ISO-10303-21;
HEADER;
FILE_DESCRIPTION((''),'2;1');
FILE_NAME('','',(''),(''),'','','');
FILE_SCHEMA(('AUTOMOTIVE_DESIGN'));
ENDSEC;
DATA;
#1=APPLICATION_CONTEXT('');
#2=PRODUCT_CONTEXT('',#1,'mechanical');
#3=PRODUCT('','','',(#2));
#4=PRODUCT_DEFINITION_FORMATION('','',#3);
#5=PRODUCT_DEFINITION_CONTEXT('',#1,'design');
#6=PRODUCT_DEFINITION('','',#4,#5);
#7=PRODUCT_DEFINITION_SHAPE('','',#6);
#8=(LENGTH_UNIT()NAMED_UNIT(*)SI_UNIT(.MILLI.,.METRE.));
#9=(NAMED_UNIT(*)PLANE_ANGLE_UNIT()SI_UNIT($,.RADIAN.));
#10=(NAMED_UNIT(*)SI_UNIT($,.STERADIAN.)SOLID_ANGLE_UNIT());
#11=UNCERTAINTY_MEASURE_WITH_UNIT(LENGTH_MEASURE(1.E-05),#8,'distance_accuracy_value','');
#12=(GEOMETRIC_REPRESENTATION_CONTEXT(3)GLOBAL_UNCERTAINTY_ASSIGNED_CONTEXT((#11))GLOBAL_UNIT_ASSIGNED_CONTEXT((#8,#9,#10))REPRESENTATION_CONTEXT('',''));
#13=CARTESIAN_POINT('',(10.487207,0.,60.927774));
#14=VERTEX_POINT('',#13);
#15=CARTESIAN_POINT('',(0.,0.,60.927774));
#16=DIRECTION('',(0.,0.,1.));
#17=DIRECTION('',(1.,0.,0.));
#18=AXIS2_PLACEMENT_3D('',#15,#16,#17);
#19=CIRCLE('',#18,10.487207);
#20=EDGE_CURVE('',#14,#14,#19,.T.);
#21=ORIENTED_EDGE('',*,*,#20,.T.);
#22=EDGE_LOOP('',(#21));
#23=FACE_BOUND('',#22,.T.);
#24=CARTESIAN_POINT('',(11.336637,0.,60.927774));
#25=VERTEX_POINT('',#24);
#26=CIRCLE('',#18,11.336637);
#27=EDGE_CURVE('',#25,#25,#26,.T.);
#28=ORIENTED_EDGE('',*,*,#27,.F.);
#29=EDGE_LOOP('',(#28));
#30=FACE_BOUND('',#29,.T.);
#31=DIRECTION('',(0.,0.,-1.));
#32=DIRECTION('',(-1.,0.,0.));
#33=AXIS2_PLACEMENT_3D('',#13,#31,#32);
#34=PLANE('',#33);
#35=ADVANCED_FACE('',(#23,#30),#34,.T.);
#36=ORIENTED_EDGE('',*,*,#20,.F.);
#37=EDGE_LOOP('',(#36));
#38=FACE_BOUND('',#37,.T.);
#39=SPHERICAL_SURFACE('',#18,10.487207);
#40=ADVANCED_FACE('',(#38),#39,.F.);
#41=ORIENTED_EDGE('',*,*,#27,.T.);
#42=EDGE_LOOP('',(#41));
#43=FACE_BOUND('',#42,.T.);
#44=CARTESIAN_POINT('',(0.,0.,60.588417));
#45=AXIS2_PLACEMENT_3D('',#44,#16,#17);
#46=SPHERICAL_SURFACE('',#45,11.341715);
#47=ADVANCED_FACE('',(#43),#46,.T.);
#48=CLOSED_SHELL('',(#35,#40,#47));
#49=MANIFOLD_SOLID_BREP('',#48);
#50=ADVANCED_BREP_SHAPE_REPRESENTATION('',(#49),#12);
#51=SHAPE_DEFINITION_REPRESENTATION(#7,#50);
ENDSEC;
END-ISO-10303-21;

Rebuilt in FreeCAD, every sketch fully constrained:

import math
import FreeCAD as App
import Part
import Sketcher
Q = App.Units.Quantity

doc = App.newDocument("Part")
body = doc.addObject("PartDesign::Body", "Body")

sketch1 = body.newObject("Sketcher::SketchObject", "Sketch")
sketch1.AttachmentSupport = (doc.getObject("XZ_Plane"), [""])
sketch1.MapMode = "FlatFace"
sketch1.addGeometry([
    Part.LineSegment(App.Vector(0, 71.4, 0), App.Vector(0, 71.9, 0)),
    Part.ArcOfCircle(Part.Circle(App.Vector(0, 60.6, 0), App.Vector(0, 0, 1), 11.3), math.radians(2), math.radians(90)),
    Part.LineSegment(App.Vector(11.3, 60.9, 0), App.Vector(10.5, 60.9, 0)),
    Part.ArcOfCircle(Part.Circle(App.Vector(0, 60.9, 0), App.Vector(0, 0, 1), 10.5), math.radians(0), math.radians(90)),
], False)
sketch1.addConstraint([
    Sketcher.Constraint("Coincident", 0, 2, 1, 2),
    Sketcher.Constraint("Coincident", 1, 1, 2, 1),
    Sketcher.Constraint("Coincident", 2, 2, 3, 1),
    Sketcher.Constraint("Coincident", 3, 2, 0, 1),
    Sketcher.Constraint("Vertical", 0),
    Sketcher.Constraint("Horizontal", 2),
    Sketcher.Constraint("PointOnObject", 1, 3, -2),
    Sketcher.Constraint("PointOnObject", 3, 3, -2),
    Sketcher.Constraint("PointOnObject", 0, 2, -2),
    Sketcher.Constraint("Horizontal", 3, 3, 1, 1),
    Sketcher.Constraint("Radius", 1, Q("11.341715 mm")),
    Sketcher.Constraint("Radius", 3, Q("10.487207 mm")),
    Sketcher.Constraint("DistanceX", 2, 2, 2, 1, Q("0.84943 mm")),
    Sketcher.Constraint("DistanceY", -1, 1, 0, 2, Q("71.930132 mm")),
])
revolution = body.newObject("PartDesign::Revolution", "Revolution")
revolution.Profile = sketch1
revolution.ReferenceAxis = (sketch1, ["V_Axis"])
revolution.Angle = 360

doc.recompute()
